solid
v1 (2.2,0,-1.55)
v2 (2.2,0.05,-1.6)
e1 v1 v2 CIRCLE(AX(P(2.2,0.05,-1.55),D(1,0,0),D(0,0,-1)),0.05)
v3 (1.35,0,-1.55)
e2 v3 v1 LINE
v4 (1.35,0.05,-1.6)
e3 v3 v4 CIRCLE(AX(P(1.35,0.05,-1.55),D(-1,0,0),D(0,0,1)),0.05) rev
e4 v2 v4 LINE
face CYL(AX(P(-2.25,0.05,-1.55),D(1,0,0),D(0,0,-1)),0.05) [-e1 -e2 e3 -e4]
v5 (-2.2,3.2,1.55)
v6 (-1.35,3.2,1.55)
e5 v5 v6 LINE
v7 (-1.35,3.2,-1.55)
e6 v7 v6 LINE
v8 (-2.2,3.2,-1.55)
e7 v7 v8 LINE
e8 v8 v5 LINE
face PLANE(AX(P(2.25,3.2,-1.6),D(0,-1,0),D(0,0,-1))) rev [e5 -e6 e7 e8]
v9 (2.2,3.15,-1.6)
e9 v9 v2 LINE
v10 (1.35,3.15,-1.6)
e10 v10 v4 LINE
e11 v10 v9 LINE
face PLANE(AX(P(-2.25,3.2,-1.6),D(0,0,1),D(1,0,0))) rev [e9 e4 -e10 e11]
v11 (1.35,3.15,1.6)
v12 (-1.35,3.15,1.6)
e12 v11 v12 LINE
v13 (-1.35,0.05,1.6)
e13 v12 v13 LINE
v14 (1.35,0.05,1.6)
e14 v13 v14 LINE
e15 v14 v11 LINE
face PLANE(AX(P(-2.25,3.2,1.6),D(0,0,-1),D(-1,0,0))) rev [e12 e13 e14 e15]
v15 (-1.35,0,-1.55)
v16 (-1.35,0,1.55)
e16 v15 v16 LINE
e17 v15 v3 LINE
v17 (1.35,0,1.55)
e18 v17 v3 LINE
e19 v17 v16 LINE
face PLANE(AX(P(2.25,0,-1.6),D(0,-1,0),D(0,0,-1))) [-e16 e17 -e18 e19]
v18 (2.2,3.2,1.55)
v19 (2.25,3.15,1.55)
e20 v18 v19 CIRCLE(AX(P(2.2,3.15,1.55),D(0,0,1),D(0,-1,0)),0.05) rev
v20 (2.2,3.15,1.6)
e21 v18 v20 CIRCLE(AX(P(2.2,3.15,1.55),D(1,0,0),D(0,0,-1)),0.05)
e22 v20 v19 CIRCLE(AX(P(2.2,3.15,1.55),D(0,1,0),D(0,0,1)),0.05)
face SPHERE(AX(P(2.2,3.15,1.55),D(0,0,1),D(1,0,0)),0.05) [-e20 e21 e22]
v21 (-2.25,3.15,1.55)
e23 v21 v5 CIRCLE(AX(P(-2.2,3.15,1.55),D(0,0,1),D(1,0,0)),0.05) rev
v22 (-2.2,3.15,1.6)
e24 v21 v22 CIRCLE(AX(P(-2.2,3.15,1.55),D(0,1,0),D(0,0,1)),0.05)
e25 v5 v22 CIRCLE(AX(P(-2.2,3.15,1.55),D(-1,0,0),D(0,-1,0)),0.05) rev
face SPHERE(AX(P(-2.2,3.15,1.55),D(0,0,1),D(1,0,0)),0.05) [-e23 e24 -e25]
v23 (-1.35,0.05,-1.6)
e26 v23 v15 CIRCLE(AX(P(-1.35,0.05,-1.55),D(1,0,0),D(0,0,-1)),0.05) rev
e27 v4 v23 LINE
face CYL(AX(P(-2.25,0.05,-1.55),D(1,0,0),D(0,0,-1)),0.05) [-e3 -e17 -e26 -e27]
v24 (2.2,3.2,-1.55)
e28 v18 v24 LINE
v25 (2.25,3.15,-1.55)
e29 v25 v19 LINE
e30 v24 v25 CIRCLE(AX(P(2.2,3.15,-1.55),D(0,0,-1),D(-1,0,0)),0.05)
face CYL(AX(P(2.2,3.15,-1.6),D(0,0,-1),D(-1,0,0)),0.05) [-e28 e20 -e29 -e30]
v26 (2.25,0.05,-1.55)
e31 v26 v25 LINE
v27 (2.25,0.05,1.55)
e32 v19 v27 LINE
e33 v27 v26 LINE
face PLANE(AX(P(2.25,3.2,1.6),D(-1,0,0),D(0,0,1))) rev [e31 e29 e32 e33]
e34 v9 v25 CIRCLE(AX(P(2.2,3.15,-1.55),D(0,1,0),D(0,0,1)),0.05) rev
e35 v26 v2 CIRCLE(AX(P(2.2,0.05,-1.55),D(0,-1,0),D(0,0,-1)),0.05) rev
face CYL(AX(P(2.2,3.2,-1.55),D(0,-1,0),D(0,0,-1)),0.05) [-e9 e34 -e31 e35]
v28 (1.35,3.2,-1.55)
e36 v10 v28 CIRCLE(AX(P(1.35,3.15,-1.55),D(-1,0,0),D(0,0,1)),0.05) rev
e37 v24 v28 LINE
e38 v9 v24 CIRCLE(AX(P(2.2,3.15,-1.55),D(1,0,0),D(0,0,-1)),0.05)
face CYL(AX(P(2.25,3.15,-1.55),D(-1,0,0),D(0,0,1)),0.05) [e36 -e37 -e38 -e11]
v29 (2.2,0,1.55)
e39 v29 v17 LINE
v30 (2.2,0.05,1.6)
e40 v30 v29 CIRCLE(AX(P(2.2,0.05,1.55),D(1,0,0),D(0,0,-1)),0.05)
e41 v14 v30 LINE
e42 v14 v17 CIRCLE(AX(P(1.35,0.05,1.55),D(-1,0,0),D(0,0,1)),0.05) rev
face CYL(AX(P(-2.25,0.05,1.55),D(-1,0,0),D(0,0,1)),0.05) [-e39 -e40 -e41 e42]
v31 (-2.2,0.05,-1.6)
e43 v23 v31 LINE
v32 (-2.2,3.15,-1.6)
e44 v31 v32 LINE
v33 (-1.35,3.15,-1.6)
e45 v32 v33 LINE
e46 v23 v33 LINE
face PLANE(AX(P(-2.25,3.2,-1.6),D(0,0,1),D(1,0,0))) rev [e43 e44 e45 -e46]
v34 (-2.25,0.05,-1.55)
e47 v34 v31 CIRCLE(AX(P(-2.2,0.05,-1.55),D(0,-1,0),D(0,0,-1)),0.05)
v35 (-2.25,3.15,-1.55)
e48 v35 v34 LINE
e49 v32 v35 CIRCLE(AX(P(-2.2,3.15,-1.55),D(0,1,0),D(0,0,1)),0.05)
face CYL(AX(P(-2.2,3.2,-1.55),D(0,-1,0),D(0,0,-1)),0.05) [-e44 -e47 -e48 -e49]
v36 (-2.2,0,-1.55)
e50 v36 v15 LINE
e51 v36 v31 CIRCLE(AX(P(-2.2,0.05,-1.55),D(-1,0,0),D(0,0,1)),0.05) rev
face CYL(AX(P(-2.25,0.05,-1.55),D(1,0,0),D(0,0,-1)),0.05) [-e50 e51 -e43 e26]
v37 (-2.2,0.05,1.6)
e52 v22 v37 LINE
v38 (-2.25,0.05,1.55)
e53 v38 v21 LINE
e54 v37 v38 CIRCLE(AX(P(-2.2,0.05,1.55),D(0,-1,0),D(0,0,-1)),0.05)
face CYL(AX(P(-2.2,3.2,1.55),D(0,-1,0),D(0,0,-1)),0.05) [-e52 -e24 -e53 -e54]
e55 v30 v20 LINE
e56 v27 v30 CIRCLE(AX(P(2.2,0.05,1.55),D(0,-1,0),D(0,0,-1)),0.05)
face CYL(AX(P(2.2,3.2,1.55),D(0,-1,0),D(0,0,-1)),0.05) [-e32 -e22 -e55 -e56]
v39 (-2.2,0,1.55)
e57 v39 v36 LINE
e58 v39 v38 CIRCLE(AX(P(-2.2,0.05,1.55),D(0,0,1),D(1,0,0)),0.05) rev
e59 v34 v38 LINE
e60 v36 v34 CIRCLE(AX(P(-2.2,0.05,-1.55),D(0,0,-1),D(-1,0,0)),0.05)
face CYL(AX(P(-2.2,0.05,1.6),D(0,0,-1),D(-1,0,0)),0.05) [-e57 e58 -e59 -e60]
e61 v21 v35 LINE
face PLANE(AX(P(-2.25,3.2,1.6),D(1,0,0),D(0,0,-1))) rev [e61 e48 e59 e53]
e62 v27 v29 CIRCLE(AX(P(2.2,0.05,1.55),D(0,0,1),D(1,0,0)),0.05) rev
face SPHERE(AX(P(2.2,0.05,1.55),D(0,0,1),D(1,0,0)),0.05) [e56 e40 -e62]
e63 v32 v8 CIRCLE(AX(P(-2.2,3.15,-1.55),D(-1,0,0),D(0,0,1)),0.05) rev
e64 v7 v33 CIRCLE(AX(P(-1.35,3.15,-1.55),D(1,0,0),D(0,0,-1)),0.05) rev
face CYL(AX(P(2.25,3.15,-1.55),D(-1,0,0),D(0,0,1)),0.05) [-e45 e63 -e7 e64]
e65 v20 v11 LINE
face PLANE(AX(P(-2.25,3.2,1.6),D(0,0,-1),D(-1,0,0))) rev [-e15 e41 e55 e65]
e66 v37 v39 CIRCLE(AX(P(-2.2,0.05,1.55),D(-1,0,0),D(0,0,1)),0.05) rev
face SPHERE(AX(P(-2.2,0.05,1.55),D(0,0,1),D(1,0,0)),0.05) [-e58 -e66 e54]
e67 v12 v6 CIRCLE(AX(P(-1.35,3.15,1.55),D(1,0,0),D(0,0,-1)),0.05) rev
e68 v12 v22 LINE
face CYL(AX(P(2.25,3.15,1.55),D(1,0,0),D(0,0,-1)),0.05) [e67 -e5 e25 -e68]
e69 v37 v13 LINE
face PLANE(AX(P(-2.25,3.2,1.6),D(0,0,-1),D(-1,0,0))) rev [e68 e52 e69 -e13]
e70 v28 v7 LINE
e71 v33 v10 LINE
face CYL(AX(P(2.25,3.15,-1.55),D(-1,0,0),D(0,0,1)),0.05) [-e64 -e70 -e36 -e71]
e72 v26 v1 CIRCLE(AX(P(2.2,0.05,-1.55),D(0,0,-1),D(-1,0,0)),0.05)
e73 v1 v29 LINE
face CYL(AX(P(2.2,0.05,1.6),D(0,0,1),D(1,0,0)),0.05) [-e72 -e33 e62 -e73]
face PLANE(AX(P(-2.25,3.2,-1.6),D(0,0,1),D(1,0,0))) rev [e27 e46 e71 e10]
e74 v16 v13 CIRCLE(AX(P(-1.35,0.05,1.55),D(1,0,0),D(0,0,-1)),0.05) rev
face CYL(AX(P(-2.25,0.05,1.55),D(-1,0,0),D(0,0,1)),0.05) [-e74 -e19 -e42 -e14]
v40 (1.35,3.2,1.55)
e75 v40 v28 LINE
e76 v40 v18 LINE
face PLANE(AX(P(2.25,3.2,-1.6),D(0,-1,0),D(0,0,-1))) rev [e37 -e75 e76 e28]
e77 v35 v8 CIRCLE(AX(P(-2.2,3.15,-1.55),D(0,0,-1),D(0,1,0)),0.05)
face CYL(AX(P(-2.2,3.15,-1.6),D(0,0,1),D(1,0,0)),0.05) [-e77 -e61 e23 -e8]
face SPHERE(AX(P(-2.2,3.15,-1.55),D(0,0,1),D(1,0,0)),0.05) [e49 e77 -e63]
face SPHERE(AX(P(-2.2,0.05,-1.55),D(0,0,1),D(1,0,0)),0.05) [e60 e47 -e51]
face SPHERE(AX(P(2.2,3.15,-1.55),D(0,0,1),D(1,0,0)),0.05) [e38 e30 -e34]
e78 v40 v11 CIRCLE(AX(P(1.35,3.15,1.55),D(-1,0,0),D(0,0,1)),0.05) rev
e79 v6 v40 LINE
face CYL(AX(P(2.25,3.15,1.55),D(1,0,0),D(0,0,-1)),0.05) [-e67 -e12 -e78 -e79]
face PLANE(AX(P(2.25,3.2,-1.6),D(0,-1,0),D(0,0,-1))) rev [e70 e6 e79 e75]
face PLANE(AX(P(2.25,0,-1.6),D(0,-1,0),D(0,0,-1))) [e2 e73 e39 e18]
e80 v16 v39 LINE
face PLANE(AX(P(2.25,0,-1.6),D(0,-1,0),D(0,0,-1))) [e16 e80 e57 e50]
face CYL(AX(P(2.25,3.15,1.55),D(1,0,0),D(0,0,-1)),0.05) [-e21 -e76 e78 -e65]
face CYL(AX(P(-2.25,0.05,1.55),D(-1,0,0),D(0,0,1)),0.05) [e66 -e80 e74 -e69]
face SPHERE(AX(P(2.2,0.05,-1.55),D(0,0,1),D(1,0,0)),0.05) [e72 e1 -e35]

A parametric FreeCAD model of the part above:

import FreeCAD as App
import Part
import Sketcher

V = App.Vector
Q = App.Units.Quantity

doc = App.newDocument("Part")
body = doc.addObject("PartDesign::Body", "Body")

# Sketch on XZ plane
sketch1 = doc.addObject("Sketcher::SketchObject", "Sketch")
body.addObject(sketch1)
sketch1.AttachmentSupport = (doc.XZ_Plane, [""])
sketch1.MapMode = "FlatFace"
sketch1.addGeometry([
    Part.LineSegment(V(-2.2, -1.6, 0), V(-2.2, 1.6, 0)),
    Part.LineSegment(V(-2.2, 1.6, 0), V(2.2, 1.6, 0)),
    Part.LineSegment(V(2.2, 1.6, 0), V(2.2, -1.6, 0)),
    Part.LineSegment(V(2.2, -1.6, 0), V(-2.2, -1.6, 0)),
], False)
sketch1.addConstraint([
    Sketcher.Constraint("Coincident", 0, 2, 1, 1),
    Sketcher.Constraint("Coincident", 1, 2, 2, 1),
    Sketcher.Constraint("Coincident", 2, 2, 3, 1),
    Sketcher.Constraint("Coincident", 3, 2, 0, 1),
    Sketcher.Constraint("Vertical", 0),
    Sketcher.Constraint("Horizontal", 1),
    Sketcher.Constraint("Vertical", 2),
    Sketcher.Constraint("Horizontal", 3),
    Sketcher.Constraint("Symmetric", 0, 2, 2, 2, -1, 1),
    Sketcher.Constraint("DistanceX", 1, 1, 1, 2, Q("4.5 mm")),
    Sketcher.Constraint("DistanceY", 0, 1, 0, 2, Q("3.2 mm")),
])
pad1 = doc.addObject("PartDesign::Pad", "Pad")
body.addObject(pad1)
pad1.Profile = sketch1
pad1.Length = 3.2
pad1.Reversed = True
doc.recompute()

fillet = doc.addObject("PartDesign::Fillet", "Fillet")
body.addObject(fillet)
fillet.Base = (pad1, ["Edge1"])
fillet.UseAllEdges = True
fillet.Radius = 0.05

doc.recompute()
